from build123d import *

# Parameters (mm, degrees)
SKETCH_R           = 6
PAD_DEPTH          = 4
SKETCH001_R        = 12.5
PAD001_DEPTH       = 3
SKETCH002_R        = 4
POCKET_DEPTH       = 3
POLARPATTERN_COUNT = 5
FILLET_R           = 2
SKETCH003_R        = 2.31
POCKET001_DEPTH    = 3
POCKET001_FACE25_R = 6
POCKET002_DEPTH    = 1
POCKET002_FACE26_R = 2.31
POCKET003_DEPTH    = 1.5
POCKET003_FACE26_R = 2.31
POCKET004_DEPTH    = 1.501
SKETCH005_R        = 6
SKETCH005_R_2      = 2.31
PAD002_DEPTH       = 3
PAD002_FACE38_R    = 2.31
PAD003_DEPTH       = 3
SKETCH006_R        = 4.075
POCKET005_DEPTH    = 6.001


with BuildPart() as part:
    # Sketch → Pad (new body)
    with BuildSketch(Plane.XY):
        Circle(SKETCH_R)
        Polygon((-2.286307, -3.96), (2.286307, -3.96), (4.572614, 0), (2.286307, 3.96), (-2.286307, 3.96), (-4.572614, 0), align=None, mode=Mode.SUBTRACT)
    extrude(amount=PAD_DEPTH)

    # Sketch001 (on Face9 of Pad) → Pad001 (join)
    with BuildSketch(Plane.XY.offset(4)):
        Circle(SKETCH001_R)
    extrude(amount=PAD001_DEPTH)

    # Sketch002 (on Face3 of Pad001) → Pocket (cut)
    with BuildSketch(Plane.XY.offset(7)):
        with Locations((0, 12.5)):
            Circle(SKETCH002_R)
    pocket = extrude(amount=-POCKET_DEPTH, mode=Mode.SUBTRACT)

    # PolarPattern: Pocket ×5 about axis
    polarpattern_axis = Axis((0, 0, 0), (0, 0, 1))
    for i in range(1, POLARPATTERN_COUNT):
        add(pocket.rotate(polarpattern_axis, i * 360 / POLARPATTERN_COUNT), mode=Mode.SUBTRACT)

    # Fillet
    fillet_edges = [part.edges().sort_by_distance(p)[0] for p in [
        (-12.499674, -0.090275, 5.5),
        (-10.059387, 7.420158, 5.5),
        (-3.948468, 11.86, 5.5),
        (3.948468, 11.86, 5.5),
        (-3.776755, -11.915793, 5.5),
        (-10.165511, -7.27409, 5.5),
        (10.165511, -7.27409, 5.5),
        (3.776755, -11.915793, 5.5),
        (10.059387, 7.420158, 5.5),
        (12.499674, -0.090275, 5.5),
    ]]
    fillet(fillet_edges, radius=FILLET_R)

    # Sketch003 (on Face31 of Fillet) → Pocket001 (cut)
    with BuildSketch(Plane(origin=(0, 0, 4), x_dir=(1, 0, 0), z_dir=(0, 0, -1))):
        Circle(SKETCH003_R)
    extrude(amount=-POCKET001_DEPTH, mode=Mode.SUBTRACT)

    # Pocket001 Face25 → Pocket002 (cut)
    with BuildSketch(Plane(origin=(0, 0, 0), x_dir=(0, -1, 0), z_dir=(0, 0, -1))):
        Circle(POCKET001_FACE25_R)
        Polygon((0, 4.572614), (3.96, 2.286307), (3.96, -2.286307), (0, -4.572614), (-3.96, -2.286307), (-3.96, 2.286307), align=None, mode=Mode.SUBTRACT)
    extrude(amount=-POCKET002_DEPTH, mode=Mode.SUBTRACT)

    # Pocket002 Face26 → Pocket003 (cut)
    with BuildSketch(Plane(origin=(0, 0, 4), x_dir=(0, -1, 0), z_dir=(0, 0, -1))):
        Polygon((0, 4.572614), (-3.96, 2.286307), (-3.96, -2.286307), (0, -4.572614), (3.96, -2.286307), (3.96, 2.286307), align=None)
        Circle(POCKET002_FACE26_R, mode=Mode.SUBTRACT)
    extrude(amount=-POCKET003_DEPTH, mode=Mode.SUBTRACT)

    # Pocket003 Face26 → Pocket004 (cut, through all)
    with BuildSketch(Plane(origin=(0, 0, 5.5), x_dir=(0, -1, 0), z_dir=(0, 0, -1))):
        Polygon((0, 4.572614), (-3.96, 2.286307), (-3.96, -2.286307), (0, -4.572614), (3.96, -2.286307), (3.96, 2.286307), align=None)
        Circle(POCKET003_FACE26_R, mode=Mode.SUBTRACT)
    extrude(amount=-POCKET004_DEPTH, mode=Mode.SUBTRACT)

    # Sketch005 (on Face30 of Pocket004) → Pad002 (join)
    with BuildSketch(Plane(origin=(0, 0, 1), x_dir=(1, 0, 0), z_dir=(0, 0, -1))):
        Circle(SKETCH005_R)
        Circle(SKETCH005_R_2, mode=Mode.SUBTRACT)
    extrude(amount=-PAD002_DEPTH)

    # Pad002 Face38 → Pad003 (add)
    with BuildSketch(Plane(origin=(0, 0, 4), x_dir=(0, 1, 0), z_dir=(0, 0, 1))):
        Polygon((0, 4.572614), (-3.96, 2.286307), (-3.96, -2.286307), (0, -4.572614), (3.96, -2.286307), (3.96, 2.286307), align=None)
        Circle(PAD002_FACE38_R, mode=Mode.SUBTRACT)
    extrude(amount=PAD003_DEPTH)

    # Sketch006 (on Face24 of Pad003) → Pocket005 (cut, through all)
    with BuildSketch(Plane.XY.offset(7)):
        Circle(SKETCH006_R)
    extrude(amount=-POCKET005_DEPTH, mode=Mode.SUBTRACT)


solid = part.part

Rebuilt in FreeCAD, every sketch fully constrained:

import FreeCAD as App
import Part
import Sketcher
from FreeCAD import Vector
Q = App.Units.Quantity


def edges_at(feature, points):
    """Names of the edges that pass closest to the given points."""
    edges = feature.Shape.Edges
    near = lambda p: min(range(len(edges)), key=lambda i: edges[i].distToShape(Part.Vertex(*p))[0])
    return sorted({f"Edge{near(p) + 1}" for p in points})


def add_polygon(sketch, points):
    """Adds a closed chain of lines whose ends are joined by coincident constraints."""
    first, n = sketch.GeometryCount, len(points)
    for a, b in zip(points, points[1:] + points[:1]):
        sketch.addGeometry(Part.LineSegment(App.Vector(*a, 0), App.Vector(*b, 0)), False)
    for i in range(n):
        sketch.addConstraint(Sketcher.Constraint("Coincident", first + i, 2, first + (i + 1) % n, 1))

doc = App.newDocument("Part")
params = doc.addObject("Spreadsheet::Sheet", "Params")
for row, (alias, value) in enumerate([
    ("sketch1_diameter", "12 mm"),
    ("pad1_length", "4 mm"),
    ("sketch2_diameter", "25 mm"),
    ("pad2_length", "3 mm"),
    ("sketch3_diameter", "8 mm"),
    ("pocket1_length", "3 mm"),
    ("fillet_radius", "2 mm"),
    ("sketch4_diameter", "4.62 mm"),
    ("pocket2_length", "3 mm"),
    ("sketch5_diameter", "12 mm"),
    ("pocket3_length", "1 mm"),
    ("sketch6_diameter", "4.62 mm"),
    ("pocket4_length", "1.5 mm"),
    ("sketch7_diameter", "4.62 mm"),
    ("sketch8_diameter", "12 mm"),
    ("sketch8_diameter2", "4.62 mm"),
    ("pad3_length", "3 mm"),
    ("sketch9_diameter", "4.62 mm"),
    ("pad4_length", "3 mm"),
    ("sketch10_diameter", "8.15 mm"),
], start=1):
    params.set(f"A{row}", alias)
    params.set(f"B{row}", "=" + value)
    params.setAlias(f"B{row}", alias)

body = doc.addObject("PartDesign::Body", "Body")

# Sketch on XY plane
sketch1 = body.newObject("Sketcher::SketchObject", "Sketch")
sketch1.AttachmentSupport = (doc.getObject("XY_Plane"), [""])
sketch1.MapMode = "FlatFace"
sketch1.addGeometry(Part.Circle(Vector(0, 0, 0), Vector(0, 0, 1), 6), False)  # 0
add_polygon(sketch1, [(2.3, -4), (-2.3, -4), (-4.6, 0), (-2.3, 4), (2.3, 4), (4.6, 0)])  # lines 1-6
sketch1.addConstraint([
    Sketcher.Constraint("Horizontal", 1),
    Sketcher.Constraint("Horizontal", 4),
    Sketcher.Constraint("Coincident", 0, 3, -1, 1),
    Sketcher.Constraint("Symmetric", 1, 2, 4, 2, -1, 1),
    Sketcher.Constraint("Symmetric", 2, 2, 5, 2, -1, 1),
    Sketcher.Constraint("PointOnObject", 2, 2, -1),
    Sketcher.Constraint("Parallel", 3, 6),
    Sketcher.Constraint("Vertical", 1, 2, 3, 2),
    Sketcher.Constraint("Diameter", 0, Q("12 mm")),
    Sketcher.Constraint("Angle", 2, Q("119.999999 deg")),
    Sketcher.Constraint("DistanceY", 1, 2, -1, 1, Q("3.96 mm")),
    Sketcher.Constraint("DistanceX", 1, 2, 1, 1, Q("4.572614 mm")),
])
sketch1.setExpression("Constraints[14]", "Params.sketch1_diameter")
pad1 = body.newObject("PartDesign::Pad", "Pad")
pad1.Profile = sketch1
pad1.setExpression("Length", "Params.pad1_length")

# Sketch on XY plane
sketch2 = body.newObject("Sketcher::SketchObject", "Sketch001")
sketch2.AttachmentSupport = (doc.getObject("XY_Plane"), [""])
sketch2.MapMode = "FlatFace"
sketch2.AttachmentOffset = App.Placement(Vector(0, 0, 4), App.Rotation())
sketch2.addGeometry(Part.Circle(Vector(0, 0, 0), Vector(0, 0, 1), 12), False)
sketch2.addConstraint([
    Sketcher.Constraint("Coincident", 0, 3, -1, 1),
    Sketcher.Constraint("Diameter", 0, Q("25 mm")),
])
sketch2.setExpression("Constraints[1]", "Params.sketch2_diameter")
pad2 = body.newObject("PartDesign::Pad", "Pad001")
pad2.Profile = sketch2
pad2.setExpression("Length", "Params.pad2_length")

# Sketch on XY plane
sketch3 = body.newObject("Sketcher::SketchObject", "Sketch002")
sketch3.AttachmentSupport = (doc.getObject("XY_Plane"), [""])
sketch3.MapMode = "FlatFace"
sketch3.AttachmentOffset = App.Placement(Vector(0, 0, 7), App.Rotation())
sketch3.addGeometry(Part.Circle(Vector(0, 12.5, 0), Vector(0, 0, 1), 4), False)
sketch3.addConstraint([
    Sketcher.Constraint("PointOnObject", 0, 3, -2),
    Sketcher.Constraint("Diameter", 0, Q("8 mm")),
    Sketcher.Constraint("DistanceY", -1, 1, 0, 3, Q("12.5 mm")),
])
sketch3.setExpression("Constraints[1]", "Params.sketch3_diameter")
pocket1 = body.newObject("PartDesign::Pocket", "Pocket")
pocket1.Profile = sketch3
pocket1.setExpression("Length", "Params.pocket1_length")
doc.recompute()

polarpattern = body.newObject("PartDesign::PolarPattern", "PolarPattern")
polarpattern.Originals = [pocket1]
polarpattern.Axis = (doc.getObject("Z_Axis"), [""])
polarpattern.Angle = 360
polarpattern.Occurrences = 5
body.Tip = polarpattern
doc.recompute()

fillet = body.newObject("PartDesign::Fillet", "Fillet")
fillet.Base = (polarpattern, edges_at(polarpattern, [
    (-12.5, -0.09, 5.5),
    (-10.059, 7.42, 5.5),
    (-3.948, 11.86, 5.5),
    (3.948, 11.86, 5.5),
    (-3.777, -11.916, 5.5),
    (-10.166, -7.274, 5.5),
    (10.166, -7.274, 5.5),
    (3.777, -11.916, 5.5),
    (10.059, 7.42, 5.5),
    (12.5, -0.09, 5.5),
]))
fillet.setExpression("Radius", "Params.fillet_radius")

# Sketch on XY plane
sketch4 = body.newObject("Sketcher::SketchObject", "Sketch003")
sketch4.AttachmentSupport = (doc.getObject("XY_Plane"), [""])
sketch4.MapMode = "FlatFace"
sketch4.AttachmentOffset = App.Placement(Vector(0, 0, 4), App.Rotation())
sketch4.addGeometry(Part.Circle(Vector(0, 0, 0), Vector(0, 0, 1), 2.3), False)
sketch4.addConstraint([
    Sketcher.Constraint("Coincident", 0, 3, -1, 1),
    Sketcher.Constraint("Diameter", 0, Q("4.62 mm")),
])
sketch4.setExpression("Constraints[1]", "Params.sketch4_diameter")
pocket2 = body.newObject("PartDesign::Pocket", "Pocket001")
pocket2.Profile = sketch4
pocket2.setExpression("Length", "Params.pocket2_length")
pocket2.Reversed = True

# Sketch on XY plane
sketch5 = body.newObject("Sketcher::SketchObject", "Sketch004")
sketch5.AttachmentSupport = (doc.getObject("XY_Plane"), [""])
sketch5.MapMode = "FlatFace"
sketch5.addGeometry(Part.Circle(Vector(0, 0, 0), Vector(0, 0, 1), 6), False)  # 0
add_polygon(sketch5, [(-2.3, 4), (-4.6, 0), (-2.3, -4), (2.3, -4), (4.6, 0), (2.3, 4)])  # lines 1-6
sketch5.addConstraint([
    Sketcher.Constraint("Horizontal", 3),
    Sketcher.Constraint("Horizontal", 6),
    Sketcher.Constraint("Coincident", 0, 3, -1, 1),
    Sketcher.Constraint("Symmetric", 1, 2, 4, 2, -1, 1),
    Sketcher.Constraint("Symmetric", 2, 2, 5, 2, -1, 1),
    Sketcher.Constraint("PointOnObject", 1, 2, -1),
    Sketcher.Constraint("Parallel", 1, 4),
    Sketcher.Constraint("Vertical", 3, 2, 5, 2),
    Sketcher.Constraint("Diameter", 0, Q("12 mm")),
    Sketcher.Constraint("Angle", 1, Q("-119.999999 deg")),
    Sketcher.Constraint("DistanceY", 2, 2, -1, 1, Q("3.96 mm")),
    Sketcher.Constraint("DistanceX", 3, 1, 3, 2, Q("4.572614 mm")),
])
sketch5.setExpression("Constraints[14]", "Params.sketch5_diameter")
pocket3 = body.newObject("PartDesign::Pocket", "Pocket002")
pocket3.Profile = sketch5
pocket3.setExpression("Length", "Params.pocket3_length")
pocket3.Reversed = True

# Sketch on XY plane
sketch6 = body.newObject("Sketcher::SketchObject", "Sketch005")
sketch6.AttachmentSupport = (doc.getObject("XY_Plane"), [""])
sketch6.MapMode = "FlatFace"
sketch6.AttachmentOffset = App.Placement(Vector(0, 0, 4), App.Rotation())
add_polygon(sketch6, [(-4.6, 0), (-2.3, 4), (2.3, 4), (4.6, 0), (2.3, -4), (-2.3, -4)])  # lines 0-5
sketch6.addGeometry(Part.Circle(Vector(0, 0, 0), Vector(0, 0, 1), 2.3), False)  # 6
sketch6.addConstraint([
    Sketcher.Constraint("Horizontal", 1),
    Sketcher.Constraint("Horizontal", 4),
    Sketcher.Constraint("Coincident", 6, 3, -1, 1),
    Sketcher.Constraint("Symmetric", 0, 2, 3, 2, -1, 1),
    Sketcher.Constraint("Symmetric", 2, 2, 5, 2, -1, 1),
    Sketcher.Constraint("PointOnObject", 2, 2, -1),
    Sketcher.Constraint("Parallel", 2, 5),
    Sketcher.Constraint("Vertical", 1, 2, 3, 2),
    Sketcher.Constraint("Diameter", 6, Q("4.62 mm")),
    Sketcher.Constraint("Angle", 0, Q("60.000001 deg")),
    Sketcher.Constraint("DistanceY", -1, 1, 0, 2, Q("3.96 mm")),
    Sketcher.Constraint("DistanceX", 1, 1, 1, 2, Q("4.572614 mm")),
])
sketch6.setExpression("Constraints[14]", "Params.sketch6_diameter")
pocket4 = body.newObject("PartDesign::Pocket", "Pocket003")
pocket4.Profile = sketch6
pocket4.setExpression("Length", "Params.pocket4_length")
pocket4.Reversed = True

# Sketch on XY plane
sketch7 = body.newObject("Sketcher::SketchObject", "Sketch006")
sketch7.AttachmentSupport = (doc.getObject("XY_Plane"), [""])
sketch7.MapMode = "FlatFace"
sketch7.AttachmentOffset = App.Placement(Vector(0, 0, 5.5), App.Rotation())
add_polygon(sketch7, [(-4.6, 0), (-2.3, 4), (2.3, 4), (4.6, 0), (2.3, -4), (-2.3, -4)])  # lines 0-5
sketch7.addGeometry(Part.Circle(Vector(0, 0, 0), Vector(0, 0, 1), 2.3), False)  # 6
sketch7.addConstraint([
    Sketcher.Constraint("Horizontal", 1),
    Sketcher.Constraint("Horizontal", 4),
    Sketcher.Constraint("Coincident", 6, 3, -1, 1),
    Sketcher.Constraint("Symmetric", 0, 2, 3, 2, -1, 1),
    Sketcher.Constraint("Symmetric", 2, 2, 5, 2, -1, 1),
    Sketcher.Constraint("PointOnObject", 2, 2, -1),
    Sketcher.Constraint("Parallel", 2, 5),
    Sketcher.Constraint("Vertical", 1, 2, 3, 2),
    Sketcher.Constraint("Diameter", 6, Q("4.62 mm")),
    Sketcher.Constraint("Angle", 0, Q("60.000001 deg")),
    Sketcher.Constraint("DistanceY", -1, 1, 0, 2, Q("3.96 mm")),
    Sketcher.Constraint("DistanceX", 1, 1, 1, 2, Q("4.572614 mm")),
])
sketch7.setExpression("Constraints[14]", "Params.sketch7_diameter")
pocket5 = body.newObject("PartDesign::Pocket", "Pocket004")
pocket5.Profile = sketch7
pocket5.Type = "ThroughAll"
pocket5.Reversed = True

# Sketch on XY plane
sketch8 = body.newObject("Sketcher::SketchObject", "Sketch007")
sketch8.AttachmentSupport = (doc.getObject("XY_Plane"), [""])
sketch8.MapMode = "FlatFace"
sketch8.AttachmentOffset = App.Placement(Vector(0, 0, 1), App.Rotation())
sketch8.addGeometry([
    Part.Circle(Vector(0, 0, 0), Vector(0, 0, 1), 6),
    Part.Circle(Vector(0, 0, 0), Vector(0, 0, 1), 2.3),
], False)
sketch8.addConstraint([
    Sketcher.Constraint("Coincident", 0, 3, -1, 1),
    Sketcher.Constraint("Coincident", 1, 3, -1, 1),
    Sketcher.Constraint("Diameter", 0, Q("12 mm")),
    Sketcher.Constraint("Diameter", 1, Q("4.62 mm")),
])
sketch8.setExpression("Constraints[2]", "Params.sketch8_diameter")
sketch8.setExpression("Constraints[3]", "Params.sketch8_diameter2")
pad3 = body.newObject("PartDesign::Pad", "Pad002")
pad3.Profile = sketch8
pad3.setExpression("Length", "Params.pad3_length")

# Sketch on XY plane
sketch9 = body.newObject("Sketcher::SketchObject", "Sketch008")
sketch9.AttachmentSupport = (doc.getObject("XY_Plane"), [""])
sketch9.MapMode = "FlatFace"
sketch9.AttachmentOffset = App.Placement(Vector(0, 0, 4), App.Rotation())
add_polygon(sketch9, [(-4.6, 0), (-2.3, -4), (2.3, -4), (4.6, 0), (2.3, 4), (-2.3, 4)])  # lines 0-5
sketch9.addGeometry(Part.Circle(Vector(0, 0, 0), Vector(0, 0, 1), 2.3), False)  # 6
sketch9.addConstraint([
    Sketcher.Constraint("Horizontal", 1),
    Sketcher.Constraint("Horizontal", 4),
    Sketcher.Constraint("Coincident", 6, 3, -1, 1),
    Sketcher.Constraint("Symmetric", 0, 2, 3, 2, -1, 1),
    Sketcher.Constraint("Symmetric", 2, 2, 5, 2, -1, 1),
    Sketcher.Constraint("PointOnObject", 2, 2, -1),
    Sketcher.Constraint("Parallel", 2, 5),
    Sketcher.Constraint("Vertical", 1, 2, 3, 2),
    Sketcher.Constraint("Diameter", 6, Q("4.62 mm")),
    Sketcher.Constraint("Angle", 0, Q("-60.000001 deg")),
    Sketcher.Constraint("DistanceY", 0, 2, -1, 1, Q("3.96 mm")),
    Sketcher.Constraint("DistanceX", 1, 1, 1, 2, Q("4.572614 mm")),
])
sketch9.setExpression("Constraints[14]", "Params.sketch9_diameter")
pad4 = body.newObject("PartDesign::Pad", "Pad003")
pad4.Profile = sketch9
pad4.setExpression("Length", "Params.pad4_length")

# Sketch on XY plane
sketch10 = body.newObject("Sketcher::SketchObject", "Sketch009")
sketch10.AttachmentSupport = (doc.getObject("XY_Plane"), [""])
sketch10.MapMode = "FlatFace"
sketch10.AttachmentOffset = App.Placement(Vector(0, 0, 7), App.Rotation())
sketch10.addGeometry(Part.Circle(Vector(0, 0, 0), Vector(0, 0, 1), 4.1), False)
sketch10.addConstraint([
    Sketcher.Constraint("Coincident", 0, 3, -1, 1),
    Sketcher.Constraint("Diameter", 0, Q("8.15 mm")),
])
sketch10.setExpression("Constraints[1]", "Params.sketch10_diameter")
pocket6 = body.newObject("PartDesign::Pocket", "Pocket005")
pocket6.Profile = sketch10
pocket6.Type = "ThroughAll"

doc.recompute()
